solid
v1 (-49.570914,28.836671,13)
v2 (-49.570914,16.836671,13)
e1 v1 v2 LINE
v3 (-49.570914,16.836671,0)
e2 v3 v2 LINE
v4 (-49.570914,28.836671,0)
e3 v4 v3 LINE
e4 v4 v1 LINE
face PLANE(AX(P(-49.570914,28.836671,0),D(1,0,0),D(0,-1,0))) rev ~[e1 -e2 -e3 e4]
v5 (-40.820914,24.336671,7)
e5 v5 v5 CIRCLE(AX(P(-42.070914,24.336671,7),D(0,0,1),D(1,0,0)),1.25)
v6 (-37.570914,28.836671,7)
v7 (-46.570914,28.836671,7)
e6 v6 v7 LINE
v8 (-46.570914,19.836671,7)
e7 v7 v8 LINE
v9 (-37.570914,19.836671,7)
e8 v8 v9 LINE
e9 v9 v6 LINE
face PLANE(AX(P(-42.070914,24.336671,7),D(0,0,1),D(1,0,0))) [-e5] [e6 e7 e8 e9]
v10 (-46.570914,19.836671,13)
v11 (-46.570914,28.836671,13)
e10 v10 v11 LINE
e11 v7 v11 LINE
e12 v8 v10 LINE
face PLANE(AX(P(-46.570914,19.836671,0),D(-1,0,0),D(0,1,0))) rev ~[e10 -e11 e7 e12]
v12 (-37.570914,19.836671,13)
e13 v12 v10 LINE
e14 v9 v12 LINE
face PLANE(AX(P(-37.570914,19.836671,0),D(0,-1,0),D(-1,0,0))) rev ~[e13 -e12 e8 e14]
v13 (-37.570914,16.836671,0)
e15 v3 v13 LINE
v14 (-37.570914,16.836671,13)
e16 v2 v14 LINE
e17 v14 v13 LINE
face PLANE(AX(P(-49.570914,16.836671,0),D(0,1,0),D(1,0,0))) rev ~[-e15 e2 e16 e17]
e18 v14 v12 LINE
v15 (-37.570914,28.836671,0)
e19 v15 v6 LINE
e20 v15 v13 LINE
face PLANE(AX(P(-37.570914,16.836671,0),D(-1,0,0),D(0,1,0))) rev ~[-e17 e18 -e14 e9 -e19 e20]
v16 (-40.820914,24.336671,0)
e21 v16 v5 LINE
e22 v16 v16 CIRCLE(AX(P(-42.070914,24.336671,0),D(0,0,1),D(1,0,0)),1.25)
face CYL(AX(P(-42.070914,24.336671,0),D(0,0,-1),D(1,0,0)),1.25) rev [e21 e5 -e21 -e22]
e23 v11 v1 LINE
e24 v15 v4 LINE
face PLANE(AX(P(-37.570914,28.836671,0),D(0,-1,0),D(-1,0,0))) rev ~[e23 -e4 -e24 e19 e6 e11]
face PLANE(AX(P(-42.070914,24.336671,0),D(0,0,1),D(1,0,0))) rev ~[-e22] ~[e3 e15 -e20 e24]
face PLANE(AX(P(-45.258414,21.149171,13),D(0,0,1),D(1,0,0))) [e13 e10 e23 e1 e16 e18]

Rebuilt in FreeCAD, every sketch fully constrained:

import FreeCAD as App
import Part
import Sketcher

doc = App.newDocument("Part")
body = doc.addObject("PartDesign::Body", "Body")

sketch1 = body.newObject("Sketcher::SketchObject", "Sketch")
sketch1.AttachmentSupport = (doc.getObject("XY_Plane"), [""])
sketch1.MapMode = "FlatFace"
sketch1.addGeometry(Part.LineSegment(App.Vector(-37.570914, 28.836671, 0), App.Vector(-49.570914, 28.836671, 0)), False)
sketch1.addGeometry(Part.LineSegment(App.Vector(-49.570914, 28.836671, 0), App.Vector(-49.570914, 16.836671, 0)), False)
sketch1.addGeometry(Part.LineSegment(App.Vector(-49.570914, 16.836671, 0), App.Vector(-37.570914, 16.836671, 0)), False)
sketch1.addGeometry(Part.LineSegment(App.Vector(-37.570914, 16.836671, 0), App.Vector(-37.570914, 28.836671, 0)), False)
sketch1.addGeometry(Part.Circle(App.Vector(-42.070914, 24.336671, 0), App.Vector(0, 0, 1), 1.25), False)
sketch1.addConstraint(Sketcher.Constraint("Coincident", 0, 2, 1, 1))
sketch1.addConstraint(Sketcher.Constraint("Coincident", 1, 2, 2, 1))
sketch1.addConstraint(Sketcher.Constraint("Coincident", 2, 2, 3, 1))
sketch1.addConstraint(Sketcher.Constraint("Coincident", 3, 2, 0, 1))
sketch1.addConstraint(Sketcher.Constraint("Horizontal", 0))
sketch1.addConstraint(Sketcher.Constraint("Vertical", 1))
sketch1.addConstraint(Sketcher.Constraint("Horizontal", 2))
sketch1.addConstraint(Sketcher.Constraint("Vertical", 3))
sketch1.addConstraint(Sketcher.Constraint("Equal", 2, 1))
sketch1.addConstraint(Sketcher.Constraint("Diameter", 4, 2.5))
sketch1.addConstraint(Sketcher.Constraint("DistanceX", 0, 2, 0, 1, 12.0))
sketch1.addConstraint(Sketcher.Constraint("DistanceX", 0, 2, 4, 3, 7.5))
sketch1.addConstraint(Sketcher.Constraint("DistanceY", 4, 3, 0, 2, 4.5))
sketch1.addConstraint(Sketcher.Constraint("DistanceY", -1, 1, 4, 3, 24.336671))
sketch1.addConstraint(Sketcher.Constraint("DistanceX", 4, 3, -1, 1, 42.070914))
pad1 = body.newObject("PartDesign::Pad", "Pad")
pad1.Profile = sketch1
pad1.Length = 7

sketch2 = body.newObject("Sketcher::SketchObject", "Sketch001")
sketch2.AttachmentSupport = (doc.getObject("XY_Plane"), [""])
sketch2.MapMode = "FlatFace"
sketch2.addGeometry(Part.LineSegment(App.Vector(-49.570914, 16.836671, 0), App.Vector(-37.570914, 16.836671, 0)), False)
sketch2.addGeometry(Part.LineSegment(App.Vector(-37.570914, 16.836671, 0), App.Vector(-37.570914, 19.836671, 0)), False)
sketch2.addGeometry(Part.LineSegment(App.Vector(-37.570914, 19.836671, 0), App.Vector(-46.570914, 19.836671, 0)), False)
sketch2.addGeometry(Part.LineSegment(App.Vector(-46.570914, 19.836671, 0), App.Vector(-46.570914, 28.836671, 0)), False)
sketch2.addGeometry(Part.LineSegment(App.Vector(-46.570914, 28.836671, 0), App.Vector(-49.570914, 28.836671, 0)), False)
sketch2.addGeometry(Part.LineSegment(App.Vector(-49.570914, 28.836671, 0), App.Vector(-49.570914, 16.836671, 0)), False)
sketch2.addConstraint(Sketcher.Constraint("Coincident", 0, 2, 1, 1))
sketch2.addConstraint(Sketcher.Constraint("Coincident", 1, 2, 2, 1))
sketch2.addConstraint(Sketcher.Constraint("Coincident", 2, 2, 3, 1))
sketch2.addConstraint(Sketcher.Constraint("Coincident", 3, 2, 4, 1))
sketch2.addConstraint(Sketcher.Constraint("Coincident", 4, 2, 5, 1))
sketch2.addConstraint(Sketcher.Constraint("Coincident", 5, 2, 0, 1))
sketch2.addConstraint(Sketcher.Constraint("Horizontal", 0))
sketch2.addConstraint(Sketcher.Constraint("Vertical", 1))
sketch2.addConstraint(Sketcher.Constraint("Horizontal", 2))
sketch2.addConstraint(Sketcher.Constraint("Vertical", 3))
sketch2.addConstraint(Sketcher.Constraint("Horizontal", 4))
sketch2.addConstraint(Sketcher.Constraint("Vertical", 5))
sketch2.addConstraint(Sketcher.Constraint("Equal", 4, 1))
sketch2.addConstraint(Sketcher.Constraint("Equal", 2, 3))
sketch2.addConstraint(Sketcher.Constraint("DistanceX", 0, 1, 0, 2, 12.0))
sketch2.addConstraint(Sketcher.Constraint("DistanceX", 2, 2, 2, 1, 9.0))
sketch2.addConstraint(Sketcher.Constraint("DistanceY", -1, 1, 0, 2, 16.836671))
sketch2.addConstraint(Sketcher.Constraint("DistanceX", 0, 2, -1, 1, 37.570914))
pad2 = body.newObject("PartDesign::Pad", "Pad001")
pad2.Profile = sketch2
pad2.Length = 13

doc.recompute()
